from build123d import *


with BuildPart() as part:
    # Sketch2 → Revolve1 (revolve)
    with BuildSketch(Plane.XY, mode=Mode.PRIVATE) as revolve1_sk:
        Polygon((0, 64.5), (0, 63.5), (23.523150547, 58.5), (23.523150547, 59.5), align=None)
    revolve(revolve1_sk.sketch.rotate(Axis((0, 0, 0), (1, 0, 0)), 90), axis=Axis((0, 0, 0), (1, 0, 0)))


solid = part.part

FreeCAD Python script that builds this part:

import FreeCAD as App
import Part
import Sketcher

V = App.Vector
Q = App.Units.Quantity


def add_polygon(sketch, points):
    """Adds a closed chain of lines whose ends are joined by coincident constraints."""
    first, n = sketch.GeometryCount, len(points)
    for a, b in zip(points, points[1:] + points[:1]):
        sketch.addGeometry(Part.LineSegment(App.Vector(*a, 0), App.Vector(*b, 0)), False)
    for i in range(n):
        sketch.addConstraint(Sketcher.Constraint("Coincident", first + i, 2, first + (i + 1) % n, 1))

doc = App.newDocument("Part")
body = doc.addObject("PartDesign::Body", "Body")

# Sketch on XY plane
sketch1 = body.newObject("Sketcher::SketchObject", "Sketch")
sketch1.AttachmentSupport = (doc.getObject("XY_Plane"), [""])
sketch1.MapMode = "FlatFace"
add_polygon(sketch1, [(0, 64.5), (0, 63.5), (23.5, 58.5), (23.5, 59.5)])  # lines 0-3
sketch1.addConstraint(Sketcher.Constraint("Vertical", 0))
sketch1.addConstraint(Sketcher.Constraint("Vertical", 2))
sketch1.addConstraint(Sketcher.Constraint("PointOnObject", 0, 2, -2))
sketch1.addConstraint(Sketcher.Constraint("Parallel", 1, 3))
sketch1.addConstraint(Sketcher.Constraint("DistanceY", 0, 2, 0, 1, 1.0))
sketch1.addConstraint(Sketcher.Constraint("Angle", 1, Q("-12 deg")))
sketch1.addConstraint(Sketcher.Constraint("DistanceY", 1, 2, 0, 2, 5.0))
sketch1.addConstraint(Sketcher.Constraint("DistanceY", -1, 1, 0, 2, 63.5))
revolution = body.newObject("PartDesign::Revolution", "Revolution")
revolution.Profile = sketch1
revolution.ReferenceAxis = (sketch1, ["H_Axis"])
revolution.Angle = 360

doc.recompute()
